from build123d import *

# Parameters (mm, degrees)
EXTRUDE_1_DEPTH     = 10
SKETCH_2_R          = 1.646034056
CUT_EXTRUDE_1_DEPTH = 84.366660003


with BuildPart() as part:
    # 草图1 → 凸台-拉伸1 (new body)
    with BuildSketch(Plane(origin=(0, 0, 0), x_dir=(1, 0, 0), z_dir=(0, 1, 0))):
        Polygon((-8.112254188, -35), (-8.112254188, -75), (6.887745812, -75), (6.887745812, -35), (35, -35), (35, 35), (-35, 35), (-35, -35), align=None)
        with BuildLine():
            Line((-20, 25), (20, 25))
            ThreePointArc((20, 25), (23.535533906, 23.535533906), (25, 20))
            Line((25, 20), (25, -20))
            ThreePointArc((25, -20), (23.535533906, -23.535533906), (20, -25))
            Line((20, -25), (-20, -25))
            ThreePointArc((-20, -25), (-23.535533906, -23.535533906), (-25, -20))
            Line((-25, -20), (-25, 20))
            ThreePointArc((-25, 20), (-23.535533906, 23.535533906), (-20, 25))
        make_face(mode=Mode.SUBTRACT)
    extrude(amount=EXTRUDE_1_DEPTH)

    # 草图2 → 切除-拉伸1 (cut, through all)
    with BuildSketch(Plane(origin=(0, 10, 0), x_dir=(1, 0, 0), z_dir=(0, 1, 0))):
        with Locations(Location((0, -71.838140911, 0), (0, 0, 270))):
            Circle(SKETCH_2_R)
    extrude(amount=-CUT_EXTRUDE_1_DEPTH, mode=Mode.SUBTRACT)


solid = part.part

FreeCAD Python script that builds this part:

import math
import FreeCAD as App
import Part
import Sketcher

V = App.Vector


def add_polygon(sketch, points):
    """Adds a closed chain of lines whose ends are joined by coincident constraints."""
    first, n = sketch.GeometryCount, len(points)
    for a, b in zip(points, points[1:] + points[:1]):
        sketch.addGeometry(Part.LineSegment(App.Vector(*a, 0), App.Vector(*b, 0)), False)
    for i in range(n):
        sketch.addConstraint(Sketcher.Constraint("Coincident", first + i, 2, first + (i + 1) % n, 1))

doc = App.newDocument("Part")
params = doc.addObject("Spreadsheet::Sheet", "Params")
for row, (alias, value) in enumerate([
    ("sketch1_radius", "5 mm"),
    ("sketch1_width", "15 mm"),
    ("sketch1_width2", "70 mm"),
    ("sketch1_width3", "40 mm"),
    ("pad1_length", "10 mm"),
], start=1):
    params.set(f"A{row}", alias)
    params.set(f"B{row}", "=" + value)
    params.setAlias(f"B{row}", alias)

body = doc.addObject("PartDesign::Body", "Body")

sketch1 = body.newObject("Sketcher::SketchObject", "Sketch")
sketch1.AttachmentSupport = (doc.getObject("XZ_Plane"), [""])
sketch1.MapMode = "FlatFace"
add_polygon(sketch1, [(-8, 35), (-8, 75), (7, 75), (7, 35), (35, 35), (35, -35), (-35, -35), (-35, 35)])
sketch1.addGeometry(Part.ArcOfCircle(Part.Circle(V(-20, -20, 0), V(0, 0, 1), 5), math.radians(180), math.radians(270)), False)
sketch1.addGeometry(Part.LineSegment(V(-20, -25, 0), V(20, -25, 0)), False)
sketch1.addGeometry(Part.ArcOfCircle(Part.Circle(V(20, -20, 0), V(0, 0, 1), 5), math.radians(-90), math.radians(0)), False)
sketch1.addGeometry(Part.LineSegment(V(25, -20, 0), V(25, 20, 0)), False)
sketch1.addGeometry(Part.ArcOfCircle(Part.Circle(V(20, 20, 0), V(0, 0, 1), 5), math.radians(0), math.radians(90)), False)
sketch1.addGeometry(Part.LineSegment(V(20, 25, 0), V(-20, 25, 0)), False)
sketch1.addGeometry(Part.ArcOfCircle(Part.Circle(V(-20, 20, 0), V(0, 0, 1), 5), math.radians(90), math.radians(180)), False)
sketch1.addGeometry(Part.LineSegment(V(-25, 20, 0), V(-25, -20, 0)), False)
sketch1.addConstraint([
    Sketcher.Constraint("Tangent", 8, 2, 9, 1),
    Sketcher.Constraint("Tangent", 9, 2, 10, 1),
    Sketcher.Constraint("Tangent", 10, 2, 11, 1),
    Sketcher.Constraint("Tangent", 11, 2, 12, 1),
    Sketcher.Constraint("Tangent", 12, 2, 13, 1),
    Sketcher.Constraint("Tangent", 13, 2, 14, 1),
    Sketcher.Constraint("Tangent", 14, 2, 15, 1),
    Sketcher.Constraint("Tangent", 15, 2, 8, 1),
    Sketcher.Constraint("Vertical", 0),
    Sketcher.Constraint("Horizontal", 1),
    Sketcher.Constraint("Vertical", 2),
    Sketcher.Constraint("Horizontal", 3),
    Sketcher.Constraint("Vertical", 4),
    Sketcher.Constraint("Horizontal", 5),
    Sketcher.Constraint("Vertical", 6),
    Sketcher.Constraint("Horizontal", 7),
    Sketcher.Constraint("Horizontal", 9),
    Sketcher.Constraint("Vertical", 11),
    Sketcher.Constraint("Horizontal", 13),
    Sketcher.Constraint("Vertical", 15),
    Sketcher.Constraint("Equal", 8, 10),
    Sketcher.Constraint("Equal", 10, 12),
    Sketcher.Constraint("Equal", 12, 14),
    Sketcher.Constraint("Symmetric", 8, 3, 12, 3, -1, 1),
    Sketcher.Constraint("Symmetric", 3, 2, 5, 2, -1, 1),
    Sketcher.Constraint("Horizontal", 3, 2, 6, 2),
    Sketcher.Constraint("Equal", 13, 0),
    Sketcher.Constraint("Equal", 5, 4),
    Sketcher.Constraint("Equal", 2, 11),
    Sketcher.Constraint("Radius", 8, 5.0),
    Sketcher.Constraint("DistanceX", 1, 1, 1, 2, 15.0),
    Sketcher.Constraint("DistanceX", 5, 2, 5, 1, 70.0),
    Sketcher.Constraint("DistanceX", 9, 1, 9, 2, 40.0),
    Sketcher.Constraint("DistanceX", 3, 1, 3, 2, 28.112254),
])
sketch1.setExpression("Constraints[37]", "Params.sketch1_radius")
sketch1.setExpression("Constraints[38]", "Params.sketch1_width")
sketch1.setExpression("Constraints[39]", "Params.sketch1_width2")
sketch1.setExpression("Constraints[40]", "Params.sketch1_width3")
pad1 = body.newObject("PartDesign::Pad", "Pad")
pad1.Profile = sketch1
pad1.setExpression("Length", "Params.pad1_length")
pad1.Reversed = True

sketch2 = body.newObject("Sketcher::SketchObject", "Sketch001")
sketch2.AttachmentSupport = (doc.getObject("XZ_Plane"), [""])
sketch2.MapMode = "FlatFace"
sketch2.AttachmentOffset = App.Placement(V(0, 0, -10), App.Rotation())
sketch2.addGeometry(Part.Circle(V(0, 71.8, 0), V(0, 0, 1), 1.6), False)
sketch2.addConstraint([
    Sketcher.Constraint("PointOnObject", 0, 3, -2),
    Sketcher.Constraint("Diameter", 0, 3.292068),
    Sketcher.Constraint("DistanceY", -1, 1, 0, 3, 71.838141),
])
pocket1 = body.newObject("PartDesign::Pocket", "Pocket")
pocket1.Profile = sketch2
pocket1.Type = "ThroughAll"
pocket1.Reversed = True

doc.recompute()
